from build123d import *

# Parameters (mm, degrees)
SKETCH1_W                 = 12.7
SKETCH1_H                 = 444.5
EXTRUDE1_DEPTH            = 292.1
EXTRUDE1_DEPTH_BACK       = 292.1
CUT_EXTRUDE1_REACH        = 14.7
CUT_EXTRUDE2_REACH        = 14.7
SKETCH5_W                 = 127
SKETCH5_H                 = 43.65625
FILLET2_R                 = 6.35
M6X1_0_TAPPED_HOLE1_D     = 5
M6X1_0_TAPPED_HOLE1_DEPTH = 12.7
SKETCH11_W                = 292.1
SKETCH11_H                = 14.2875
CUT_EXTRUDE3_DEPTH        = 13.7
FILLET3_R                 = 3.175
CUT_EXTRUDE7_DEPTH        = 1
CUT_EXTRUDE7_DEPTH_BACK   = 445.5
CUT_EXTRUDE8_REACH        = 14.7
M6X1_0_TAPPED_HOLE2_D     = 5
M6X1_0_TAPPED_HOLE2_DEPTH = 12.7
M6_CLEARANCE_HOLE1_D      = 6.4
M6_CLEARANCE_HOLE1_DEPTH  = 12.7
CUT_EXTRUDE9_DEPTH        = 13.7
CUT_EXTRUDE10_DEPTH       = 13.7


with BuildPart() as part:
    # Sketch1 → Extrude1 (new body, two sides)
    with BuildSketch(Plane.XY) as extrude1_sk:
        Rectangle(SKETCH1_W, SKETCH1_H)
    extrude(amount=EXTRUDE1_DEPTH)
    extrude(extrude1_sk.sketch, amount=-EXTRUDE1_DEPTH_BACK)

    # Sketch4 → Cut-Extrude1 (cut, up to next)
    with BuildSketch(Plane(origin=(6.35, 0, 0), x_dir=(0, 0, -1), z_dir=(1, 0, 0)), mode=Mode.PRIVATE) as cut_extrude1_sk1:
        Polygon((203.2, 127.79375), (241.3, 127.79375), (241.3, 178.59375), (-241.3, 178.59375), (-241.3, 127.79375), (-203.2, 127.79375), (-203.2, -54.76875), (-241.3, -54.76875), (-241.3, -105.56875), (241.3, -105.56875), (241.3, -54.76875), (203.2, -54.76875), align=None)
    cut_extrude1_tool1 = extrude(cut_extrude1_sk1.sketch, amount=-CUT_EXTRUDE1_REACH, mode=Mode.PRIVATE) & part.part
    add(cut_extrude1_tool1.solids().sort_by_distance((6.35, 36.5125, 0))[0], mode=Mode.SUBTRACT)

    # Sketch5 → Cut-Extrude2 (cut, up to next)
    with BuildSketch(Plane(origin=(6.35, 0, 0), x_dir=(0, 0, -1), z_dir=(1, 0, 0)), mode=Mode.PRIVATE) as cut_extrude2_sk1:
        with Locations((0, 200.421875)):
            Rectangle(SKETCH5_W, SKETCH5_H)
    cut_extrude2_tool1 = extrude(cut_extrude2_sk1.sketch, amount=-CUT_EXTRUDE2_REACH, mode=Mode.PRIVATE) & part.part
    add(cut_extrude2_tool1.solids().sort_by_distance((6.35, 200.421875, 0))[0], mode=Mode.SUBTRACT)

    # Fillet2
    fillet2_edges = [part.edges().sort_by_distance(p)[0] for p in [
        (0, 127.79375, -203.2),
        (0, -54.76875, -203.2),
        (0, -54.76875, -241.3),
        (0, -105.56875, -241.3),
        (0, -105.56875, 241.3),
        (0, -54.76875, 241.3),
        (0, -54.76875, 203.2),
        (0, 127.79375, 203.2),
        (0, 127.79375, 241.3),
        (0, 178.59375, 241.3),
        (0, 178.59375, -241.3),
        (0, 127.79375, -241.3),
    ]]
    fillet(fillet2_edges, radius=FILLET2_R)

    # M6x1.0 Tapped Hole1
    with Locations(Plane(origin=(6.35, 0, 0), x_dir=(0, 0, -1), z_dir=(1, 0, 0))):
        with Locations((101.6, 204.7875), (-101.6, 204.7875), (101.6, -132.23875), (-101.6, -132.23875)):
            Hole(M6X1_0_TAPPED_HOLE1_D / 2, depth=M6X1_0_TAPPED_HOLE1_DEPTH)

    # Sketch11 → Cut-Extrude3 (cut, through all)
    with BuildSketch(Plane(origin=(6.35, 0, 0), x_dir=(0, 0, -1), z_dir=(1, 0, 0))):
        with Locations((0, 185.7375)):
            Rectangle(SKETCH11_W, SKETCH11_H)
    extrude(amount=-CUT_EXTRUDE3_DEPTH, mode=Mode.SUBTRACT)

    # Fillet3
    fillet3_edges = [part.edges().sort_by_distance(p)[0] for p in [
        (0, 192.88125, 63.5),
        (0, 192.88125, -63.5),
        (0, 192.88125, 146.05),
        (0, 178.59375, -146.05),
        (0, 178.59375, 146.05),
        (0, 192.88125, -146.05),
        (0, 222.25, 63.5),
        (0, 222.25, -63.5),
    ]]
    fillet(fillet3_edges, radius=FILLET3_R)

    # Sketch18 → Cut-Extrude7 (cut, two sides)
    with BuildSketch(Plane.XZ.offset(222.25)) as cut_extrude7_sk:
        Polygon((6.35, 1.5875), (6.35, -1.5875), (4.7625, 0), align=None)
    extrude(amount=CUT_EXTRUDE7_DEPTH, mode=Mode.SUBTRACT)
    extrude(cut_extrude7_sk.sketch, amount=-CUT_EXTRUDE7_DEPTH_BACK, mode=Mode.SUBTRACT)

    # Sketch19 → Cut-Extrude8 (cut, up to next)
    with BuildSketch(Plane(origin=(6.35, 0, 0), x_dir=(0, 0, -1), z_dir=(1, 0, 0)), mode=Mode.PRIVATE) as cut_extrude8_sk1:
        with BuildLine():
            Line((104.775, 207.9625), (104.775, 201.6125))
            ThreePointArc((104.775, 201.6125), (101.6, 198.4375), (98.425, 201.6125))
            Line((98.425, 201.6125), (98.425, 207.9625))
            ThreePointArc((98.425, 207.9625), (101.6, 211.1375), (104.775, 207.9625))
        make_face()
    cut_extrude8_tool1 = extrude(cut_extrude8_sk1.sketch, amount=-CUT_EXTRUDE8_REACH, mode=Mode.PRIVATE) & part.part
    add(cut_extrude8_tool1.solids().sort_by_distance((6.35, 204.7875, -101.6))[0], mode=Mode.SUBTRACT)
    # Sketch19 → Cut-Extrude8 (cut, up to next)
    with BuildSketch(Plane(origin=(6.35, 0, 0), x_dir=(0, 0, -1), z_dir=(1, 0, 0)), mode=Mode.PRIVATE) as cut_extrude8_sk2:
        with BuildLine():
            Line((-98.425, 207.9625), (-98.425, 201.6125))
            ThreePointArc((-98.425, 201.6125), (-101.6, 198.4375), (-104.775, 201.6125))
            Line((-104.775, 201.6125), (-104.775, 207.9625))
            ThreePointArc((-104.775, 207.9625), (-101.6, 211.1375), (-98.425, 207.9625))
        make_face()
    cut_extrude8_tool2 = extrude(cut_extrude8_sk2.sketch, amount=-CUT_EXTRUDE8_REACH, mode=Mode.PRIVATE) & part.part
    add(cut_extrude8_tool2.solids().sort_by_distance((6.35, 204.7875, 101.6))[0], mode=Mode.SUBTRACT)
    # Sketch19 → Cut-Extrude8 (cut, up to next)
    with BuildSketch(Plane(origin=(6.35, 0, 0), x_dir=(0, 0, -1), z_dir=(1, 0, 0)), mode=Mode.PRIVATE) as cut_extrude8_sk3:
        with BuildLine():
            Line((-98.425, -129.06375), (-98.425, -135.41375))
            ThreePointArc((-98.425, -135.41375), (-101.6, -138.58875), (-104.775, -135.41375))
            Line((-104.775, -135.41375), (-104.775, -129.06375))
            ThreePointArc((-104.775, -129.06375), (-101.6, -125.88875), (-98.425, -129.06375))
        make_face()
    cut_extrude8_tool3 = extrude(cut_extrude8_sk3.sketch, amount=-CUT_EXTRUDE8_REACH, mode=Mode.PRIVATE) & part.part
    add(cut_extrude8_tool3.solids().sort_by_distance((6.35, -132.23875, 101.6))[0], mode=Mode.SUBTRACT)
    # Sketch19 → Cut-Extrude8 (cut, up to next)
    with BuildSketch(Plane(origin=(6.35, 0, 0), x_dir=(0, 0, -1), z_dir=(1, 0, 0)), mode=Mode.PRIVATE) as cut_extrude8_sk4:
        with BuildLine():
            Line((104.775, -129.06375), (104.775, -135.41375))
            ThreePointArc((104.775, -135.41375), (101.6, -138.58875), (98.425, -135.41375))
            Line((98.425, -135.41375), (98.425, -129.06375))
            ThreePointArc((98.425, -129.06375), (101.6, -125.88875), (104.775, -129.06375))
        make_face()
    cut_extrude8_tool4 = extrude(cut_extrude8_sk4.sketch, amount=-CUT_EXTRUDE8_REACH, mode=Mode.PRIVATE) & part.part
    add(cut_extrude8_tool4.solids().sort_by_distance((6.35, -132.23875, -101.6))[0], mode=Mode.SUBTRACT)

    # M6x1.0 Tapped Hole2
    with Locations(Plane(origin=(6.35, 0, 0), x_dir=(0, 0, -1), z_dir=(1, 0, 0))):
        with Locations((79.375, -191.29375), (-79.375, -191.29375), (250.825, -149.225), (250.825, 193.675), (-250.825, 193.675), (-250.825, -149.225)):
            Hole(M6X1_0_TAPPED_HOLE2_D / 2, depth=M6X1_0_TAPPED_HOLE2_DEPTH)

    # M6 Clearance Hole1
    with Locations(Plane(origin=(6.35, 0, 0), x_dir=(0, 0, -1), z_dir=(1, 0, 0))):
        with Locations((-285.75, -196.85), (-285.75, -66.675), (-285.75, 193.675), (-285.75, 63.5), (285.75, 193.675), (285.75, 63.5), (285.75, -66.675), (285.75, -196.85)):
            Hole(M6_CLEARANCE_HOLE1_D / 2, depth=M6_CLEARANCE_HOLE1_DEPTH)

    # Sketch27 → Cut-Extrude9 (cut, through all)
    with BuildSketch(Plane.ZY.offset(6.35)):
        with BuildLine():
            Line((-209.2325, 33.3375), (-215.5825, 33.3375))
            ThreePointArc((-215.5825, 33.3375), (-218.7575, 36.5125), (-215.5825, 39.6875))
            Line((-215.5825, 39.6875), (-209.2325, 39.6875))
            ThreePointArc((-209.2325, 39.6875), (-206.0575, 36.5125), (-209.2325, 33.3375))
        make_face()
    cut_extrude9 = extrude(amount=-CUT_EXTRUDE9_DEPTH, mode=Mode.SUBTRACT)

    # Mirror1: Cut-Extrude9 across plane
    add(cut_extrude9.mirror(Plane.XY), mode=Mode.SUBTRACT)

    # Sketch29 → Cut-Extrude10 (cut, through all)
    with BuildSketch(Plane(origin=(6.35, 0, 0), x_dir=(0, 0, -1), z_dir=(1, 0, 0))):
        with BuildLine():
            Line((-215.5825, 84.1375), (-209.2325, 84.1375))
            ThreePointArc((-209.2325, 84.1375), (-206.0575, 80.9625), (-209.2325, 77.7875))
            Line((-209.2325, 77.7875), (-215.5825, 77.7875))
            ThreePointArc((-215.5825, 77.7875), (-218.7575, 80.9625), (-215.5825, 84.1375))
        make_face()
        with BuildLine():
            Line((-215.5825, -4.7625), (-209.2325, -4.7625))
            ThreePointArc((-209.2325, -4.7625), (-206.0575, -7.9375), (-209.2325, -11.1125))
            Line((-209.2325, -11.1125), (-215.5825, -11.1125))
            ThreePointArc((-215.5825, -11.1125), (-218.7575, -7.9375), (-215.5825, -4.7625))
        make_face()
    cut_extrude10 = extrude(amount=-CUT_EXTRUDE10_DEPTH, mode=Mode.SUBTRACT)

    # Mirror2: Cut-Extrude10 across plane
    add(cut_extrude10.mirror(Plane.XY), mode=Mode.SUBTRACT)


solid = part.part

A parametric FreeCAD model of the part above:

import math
import FreeCAD as App
import Part
import Sketcher
from FreeCAD import Vector
Q = App.Units.Quantity


def edges_at(feature, points):
    """Names of the edges that pass closest to the given points."""
    edges = feature.Shape.Edges
    near = lambda p: min(range(len(edges)), key=lambda i: edges[i].distToShape(Part.Vertex(*p))[0])
    return sorted({f"Edge{near(p) + 1}" for p in points})


def add_polygon(sketch, points):
    """Adds a closed chain of lines whose ends are joined by coincident constraints."""
    first, n = sketch.GeometryCount, len(points)
    for a, b in zip(points, points[1:] + points[:1]):
        sketch.addGeometry(Part.LineSegment(App.Vector(*a, 0), App.Vector(*b, 0)), False)
    for i in range(n):
        sketch.addConstraint(Sketcher.Constraint("Coincident", first + i, 2, first + (i + 1) % n, 1))

doc = App.newDocument("Part")
body = doc.addObject("PartDesign::Body", "Body")

# Sketch on XY plane
sketch1 = body.newObject("Sketcher::SketchObject", "Sketch")
sketch1.AttachmentSupport = (doc.getObject("XY_Plane"), [""])
sketch1.MapMode = "FlatFace"
add_polygon(sketch1, [(-6.35, 222.25), (-6.35, -222.25), (6.35, -222.25), (6.35, 222.25)])  # lines 0-3
sketch1.addConstraint(Sketcher.Constraint("Vertical", 0))
sketch1.addConstraint(Sketcher.Constraint("Horizontal", 1))
sketch1.addConstraint(Sketcher.Constraint("Vertical", 2))
sketch1.addConstraint(Sketcher.Constraint("Horizontal", 3))
sketch1.addConstraint(Sketcher.Constraint("Symmetric", 0, 2, 2, 2, -1, 1))
sketch1.addConstraint(Sketcher.Constraint("DistanceX", 1, 1, 1, 2, Q("0.5 in")))
sketch1.addConstraint(Sketcher.Constraint("DistanceY", 0, 2, 0, 1, Q("17.5 in")))
pad1 = body.newObject("PartDesign::Pad", "Pad")
pad1.Profile = sketch1
pad1.Type = "TwoLengths"
pad1.Length = Q("11.5 in")
pad1.Length2 = Q("11.5 in")

# Sketch on YZ plane
sketch2 = body.newObject("Sketcher::SketchObject", "Sketch001")
sketch2.AttachmentSupport = (doc.getObject("YZ_Plane"), [""])
sketch2.MapMode = "FlatFace"
sketch2.AttachmentOffset = App.Placement(Vector(0, 0, 0.25 * 25.4), App.Rotation())
add_polygon(sketch2, [(127.79375, -203.2), (127.79375, -241.3), (178.59375, -241.3), (178.59375, 241.3), (127.79375, 241.3), (127.79375, 203.2), (-54.76875, 203.2), (-54.76875, 241.3), (-105.56875, 241.3), (-105.56875, -241.3), (-54.76875, -241.3), (-54.76875, -203.2)])  # lines 0-11
sketch2.addConstraint(Sketcher.Constraint("Vertical", 0))
sketch2.addConstraint(Sketcher.Constraint("Horizontal", 1))
sketch2.addConstraint(Sketcher.Constraint("Vertical", 2))
sketch2.addConstraint(Sketcher.Constraint("Horizontal", 3))
sketch2.addConstraint(Sketcher.Constraint("Vertical", 4))
sketch2.addConstraint(Sketcher.Constraint("Horizontal", 5))
sketch2.addConstraint(Sketcher.Constraint("Vertical", 6))
sketch2.addConstraint(Sketcher.Constraint("Horizontal", 7))
sketch2.addConstraint(Sketcher.Constraint("Vertical", 8))
sketch2.addConstraint(Sketcher.Constraint("Horizontal", 9))
sketch2.addConstraint(Sketcher.Constraint("Vertical", 10))
sketch2.addConstraint(Sketcher.Constraint("Horizontal", 11))
sketch2.addConstraint(Sketcher.Constraint("Symmetric", 0, 2, 3, 2, -1))
sketch2.addConstraint(Sketcher.Constraint("Symmetric", 6, 2, 9, 2, -1))
sketch2.addConstraint(Sketcher.Constraint("Horizontal", 3, 2, 6, 2))
sketch2.addConstraint(Sketcher.Constraint("Equal", 3, 7))
sketch2.addConstraint(Sketcher.Constraint("Equal", 0, 4))
sketch2.addConstraint(Sketcher.Constraint("DistanceX", 1, 1, 1, 2, Q("2 in")))
sketch2.addConstraint(Sketcher.Constraint("DistanceY", 2, 1, 2, 2, Q("19 in")))
sketch2.addConstraint(Sketcher.Constraint("DistanceY", 0, 2, 0, 1, Q("1.5 in")))
sketch2.addConstraint(Sketcher.Constraint("DistanceX", 5, 2, 5, 1, Q("7.1875 in")))
sketch2.addConstraint(Sketcher.Constraint("DistanceX", -1, 1, 0, 2, Q("5.03125 in")))
pocket1 = body.newObject("PartDesign::Pocket", "Pocket")
pocket1.Profile = sketch2
pocket1.Type = "UpToFirst"

# Sketch on YZ plane
sketch3 = body.newObject("Sketcher::SketchObject", "Sketch002")
sketch3.AttachmentSupport = (doc.getObject("YZ_Plane"), [""])
sketch3.MapMode = "FlatFace"
sketch3.AttachmentOffset = App.Placement(Vector(0, 0, 0.25 * 25.4), App.Rotation())
add_polygon(sketch3, [(222.25, 63.5), (178.59375, 63.5), (178.59375, -63.5), (222.25, -63.5)])  # lines 0-3
sketch3.addConstraint(Sketcher.Constraint("Horizontal", 0))
sketch3.addConstraint(Sketcher.Constraint("Vertical", 1))
sketch3.addConstraint(Sketcher.Constraint("Horizontal", 2))
sketch3.addConstraint(Sketcher.Constraint("Vertical", 3))
sketch3.addConstraint(Sketcher.Constraint("DistanceY", 1, 2, 1, 1, Q("5 in")))
sketch3.addConstraint(Sketcher.Constraint("DistanceY", -1, 1, 0, 2, Q("2.5 in")))
sketch3.addConstraint(Sketcher.Constraint("DistanceX", 0, 2, 0, 1, Q("1.71875 in")))
sketch3.addConstraint(Sketcher.Constraint("DistanceX", -1, 1, 2, 2, Q("8.75 in")))
pocket2 = body.newObject("PartDesign::Pocket", "Pocket001")
pocket2.Profile = sketch3
pocket2.Type = "UpToFirst"
doc.recompute()

fillet = body.newObject("PartDesign::Fillet", "Fillet")
fillet.Base = (pocket2, edges_at(pocket2, [
    (0, 127.794, -203.2),
    (0, -54.769, -203.2),
    (0, -54.769, -241.3),
    (0, -105.569, -241.3),
    (0, -105.569, 241.3),
    (0, -54.769, 241.3),
    (0, -54.769, 203.2),
    (0, 127.794, 203.2),
    (0, 127.794, 241.3),
    (0, 178.594, 241.3),
    (0, 178.594, -241.3),
    (0, 127.794, -241.3),
]))
fillet.Radius = Q("0.25 in")

# Sketch on YZ plane
sketch4 = body.newObject("Sketcher::SketchObject", "Sketch003")
sketch4.AttachmentSupport = (doc.getObject("YZ_Plane"), [""])
sketch4.MapMode = "FlatFace"
sketch4.AttachmentOffset = App.Placement(Vector(0, 0, 0.25 * 25.4), App.Rotation())
sketch4.addGeometry(Part.Circle(Vector(204.7875, -101.6, 0), Vector(0, 0, 1), 2.5), False)
sketch4.addGeometry(Part.Circle(Vector(204.7875, 101.6, 0), Vector(0, 0, 1), 2.5), False)
sketch4.addGeometry(Part.Circle(Vector(-132.23875, -101.6, 0), Vector(0, 0, 1), 2.5), False)
sketch4.addGeometry(Part.Circle(Vector(-132.23875, 101.6, 0), Vector(0, 0, 1), 2.5), False)
sketch4.addConstraint(Sketcher.Constraint("Equal", 0, 1))
sketch4.addConstraint(Sketcher.Constraint("Equal", 1, 2))
sketch4.addConstraint(Sketcher.Constraint("Equal", 2, 3))
sketch4.addConstraint(Sketcher.Constraint("Symmetric", 0, 3, 1, 3, -1))
sketch4.addConstraint(Sketcher.Constraint("Symmetric", 2, 3, 3, 3, -1))
sketch4.addConstraint(Sketcher.Constraint("Horizontal", 0, 3, 2, 3))
sketch4.addConstraint(Sketcher.Constraint("DistanceY", 0, 3, -1, 1, Q("4 in")))
sketch4.addConstraint(Sketcher.Constraint("Diameter", 0, Q("5 mm")))
sketch4.addConstraint(Sketcher.Constraint("DistanceX", -1, 1, 0, 3, Q("8.0625 in")))
sketch4.addConstraint(Sketcher.Constraint("DistanceX", 2, 3, -1, 1, Q("132.23875 mm")))
doc.recompute()
hole = body.newObject("PartDesign::Hole", "Hole")
hole.Profile = sketch4
hole.ThreadType = "None"
hole.Diameter = 5
hole.DepthType = "Dimension"
hole.Depth = Q("0.5 in")
hole.DrillPoint = "Flat"

# Sketch on YZ plane
sketch5 = body.newObject("Sketcher::SketchObject", "Sketch004")
sketch5.AttachmentSupport = (doc.getObject("YZ_Plane"), [""])
sketch5.MapMode = "FlatFace"
sketch5.AttachmentOffset = App.Placement(Vector(0, 0, 0.25 * 25.4), App.Rotation())
add_polygon(sketch5, [(192.88125, 146.05), (178.59375, 146.05), (178.59375, -146.05), (192.88125, -146.05)])  # lines 0-3
sketch5.addConstraint(Sketcher.Constraint("Horizontal", 0))
sketch5.addConstraint(Sketcher.Constraint("Vertical", 1))
sketch5.addConstraint(Sketcher.Constraint("Horizontal", 2))
sketch5.addConstraint(Sketcher.Constraint("Vertical", 3))
sketch5.addConstraint(Sketcher.Constraint("DistanceY", 1, 2, 1, 1, Q("11.5 in")))
sketch5.addConstraint(Sketcher.Constraint("DistanceX", 0, 2, 0, 1, Q("0.5625 in")))
sketch5.addConstraint(Sketcher.Constraint("DistanceY", -1, 1, 0, 2, Q("5.75 in")))
sketch5.addConstraint(Sketcher.Constraint("DistanceX", -1, 1, 0, 2, Q("7.03125 in")))
pocket3 = body.newObject("PartDesign::Pocket", "Pocket002")
pocket3.Profile = sketch5
pocket3.Type = "ThroughAll"
doc.recompute()

fillet2 = body.newObject("PartDesign::Fillet", "Fillet001")
fillet2.Base = (pocket3, edges_at(pocket3, [
    (0, 192.881, 63.5),
    (0, 192.881, -63.5),
    (0, 192.881, 146.05),
    (0, 178.594, -146.05),
    (0, 178.594, 146.05),
    (0, 192.881, -146.05),
    (0, 222.25, 63.5),
    (0, 222.25, -63.5),
]))
fillet2.Radius = Q("0.125 in")

# Sketch on XZ plane
sketch6 = body.newObject("Sketcher::SketchObject", "Sketch005")
sketch6.AttachmentSupport = (doc.getObject("XZ_Plane"), [""])
sketch6.MapMode = "FlatFace"
sketch6.AttachmentOffset = App.Placement(Vector(0, 0, 8.75 * 25.4), App.Rotation())
add_polygon(sketch6, [(6.35, -1.5875), (6.35, 1.5875), (4.7625, 0)])  # lines 0-2
sketch6.addConstraint(Sketcher.Constraint("Vertical", 0))
sketch6.addConstraint(Sketcher.Constraint("PointOnObject", 1, 2, -1))
sketch6.addConstraint(Sketcher.Constraint("Perpendicular", 1, 2))
sketch6.addConstraint(Sketcher.Constraint("Equal", 1, 2))
sketch6.addConstraint(Sketcher.Constraint("DistanceY", 0, 1, 0, 2, Q("0.125 in")))
sketch6.addConstraint(Sketcher.Constraint("DistanceX", -1, 1, 0, 2, Q("0.25 in")))
pocket4 = body.newObject("PartDesign::Pocket", "Pocket003")
pocket4.Profile = sketch6
pocket4.Type = "ThroughAll"
pocket4.Midplane = True

# Sketch on YZ plane
sketch7 = body.newObject("Sketcher::SketchObject", "Sketch006")
sketch7.AttachmentSupport = (doc.getObject("YZ_Plane"), [""])
sketch7.MapMode = "FlatFace"
sketch7.AttachmentOffset = App.Placement(Vector(0, 0, 0.25 * 25.4), App.Rotation())
sketch7.addGeometry(Part.LineSegment(Vector(201.6125, -104.775, 0), Vector(207.9625, -104.775, 0)), False)
sketch7.addGeometry(Part.ArcOfCircle(Part.Circle(Vector(207.9625, -101.6, 0), Vector(0, 0, 1), 3.175), math.radians(-90), math.radians(90)), False)
sketch7.addGeometry(Part.LineSegment(Vector(207.9625, -98.425, 0), Vector(201.6125, -98.425, 0)), False)
sketch7.addGeometry(Part.ArcOfCircle(Part.Circle(Vector(201.6125, -101.6, 0), Vector(0, 0, 1), 3.175), math.radians(90), math.radians(270)), False)
sketch7.addConstraint(Sketcher.Constraint("Tangent", 0, 2, 1, 1))
sketch7.addConstraint(Sketcher.Constraint("Tangent", 1, 2, 2, 1))
sketch7.addConstraint(Sketcher.Constraint("Tangent", 2, 2, 3, 1))
sketch7.addConstraint(Sketcher.Constraint("Tangent", 3, 2, 0, 1))
sketch7.addConstraint(Sketcher.Constraint("Horizontal", 0))
sketch7.addConstraint(Sketcher.Constraint("Horizontal", 2))
sketch7.addConstraint(Sketcher.Constraint("DistanceY", 1, 3, -1, 1, Q("4 in")))
sketch7.addConstraint(Sketcher.Constraint("Radius", 1, Q("0.125 in")))
sketch7.addConstraint(Sketcher.Constraint("DistanceX", 0, 1, 0, 2, Q("0.25 in")))
sketch7.addConstraint(Sketcher.Constraint("DistanceX", -1, 1, 1, 3, Q("8.1875 in")))
pocket5 = body.newObject("PartDesign::Pocket", "Pocket004")
pocket5.Profile = sketch7
pocket5.Length = Q("0.5 in")

# Sketch on YZ plane
sketch8 = body.newObject("Sketcher::SketchObject", "Sketch007")
sketch8.AttachmentSupport = (doc.getObject("YZ_Plane"), [""])
sketch8.MapMode = "FlatFace"
sketch8.AttachmentOffset = App.Placement(Vector(0, 0, 0.25 * 25.4), App.Rotation())
sketch8.addGeometry(Part.LineSegment(Vector(201.6125, 98.425, 0), Vector(207.9625, 98.425, 0)), False)
sketch8.addGeometry(Part.ArcOfCircle(Part.Circle(Vector(207.9625, 101.6, 0), Vector(0, 0, 1), 3.175), math.radians(-90), math.radians(90)), False)
sketch8.addGeometry(Part.LineSegment(Vector(207.9625, 104.775, 0), Vector(201.6125, 104.775, 0)), False)
sketch8.addGeometry(Part.ArcOfCircle(Part.Circle(Vector(201.6125, 101.6, 0), Vector(0, 0, 1), 3.175), math.radians(90), math.radians(270)), False)
sketch8.addConstraint(Sketcher.Constraint("Tangent", 0, 2, 1, 1))
sketch8.addConstraint(Sketcher.Constraint("Tangent", 1, 2, 2, 1))
sketch8.addConstraint(Sketcher.Constraint("Tangent", 2, 2, 3, 1))
sketch8.addConstraint(Sketcher.Constraint("Tangent", 3, 2, 0, 1))
sketch8.addConstraint(Sketcher.Constraint("Horizontal", 0))
sketch8.addConstraint(Sketcher.Constraint("Horizontal", 2))
sketch8.addConstraint(Sketcher.Constraint("DistanceY", -1, 1, 1, 3, Q("4 in")))
sketch8.addConstraint(Sketcher.Constraint("Radius", 1, Q("0.125 in")))
sketch8.addConstraint(Sketcher.Constraint("DistanceX", 0, 1, 0, 2, Q("0.25 in")))
sketch8.addConstraint(Sketcher.Constraint("DistanceX", -1, 1, 1, 3, Q("8.1875 in")))
pocket6 = body.newObject("PartDesign::Pocket", "Pocket005")
pocket6.Profile = sketch8
pocket6.Length = Q("0.5 in")

# Sketch on YZ plane
sketch9 = body.newObject("Sketcher::SketchObject", "Sketch008")
sketch9.AttachmentSupport = (doc.getObject("YZ_Plane"), [""])
sketch9.MapMode = "FlatFace"
sketch9.AttachmentOffset = App.Placement(Vector(0, 0, 0.25 * 25.4), App.Rotation())
sketch9.addGeometry(Part.LineSegment(Vector(-135.41375, 98.425, 0), Vector(-129.06375, 98.425, 0)), False)
sketch9.addGeometry(Part.ArcOfCircle(Part.Circle(Vector(-129.06375, 101.6, 0), Vector(0, 0, 1), 3.175), math.radians(-90), math.radians(90)), False)
sketch9.addGeometry(Part.LineSegment(Vector(-129.06375, 104.775, 0), Vector(-135.41375, 104.775, 0)), False)
sketch9.addGeometry(Part.ArcOfCircle(Part.Circle(Vector(-135.41375, 101.6, 0), Vector(0, 0, 1), 3.175), math.radians(90), math.radians(270)), False)
sketch9.addConstraint(Sketcher.Constraint("Tangent", 0, 2, 1, 1))
sketch9.addConstraint(Sketcher.Constraint("Tangent", 1, 2, 2, 1))
sketch9.addConstraint(Sketcher.Constraint("Tangent", 2, 2, 3, 1))
sketch9.addConstraint(Sketcher.Constraint("Tangent", 3, 2, 0, 1))
sketch9.addConstraint(Sketcher.Constraint("Horizontal", 0))
sketch9.addConstraint(Sketcher.Constraint("Horizontal", 2))
sketch9.addConstraint(Sketcher.Constraint("DistanceY", -1, 1, 1, 3, Q("4 in")))
sketch9.addConstraint(Sketcher.Constraint("Radius", 1, Q("0.125 in")))
sketch9.addConstraint(Sketcher.Constraint("DistanceX", 0, 1, 0, 2, Q("0.25 in")))
sketch9.addConstraint(Sketcher.Constraint("DistanceX", 1, 3, -1, 1, Q("129.06375 mm")))
pocket7 = body.newObject("PartDesign::Pocket", "Pocket006")
pocket7.Profile = sketch9
pocket7.Length = Q("0.5 in")

# Sketch on YZ plane
sketch10 = body.newObject("Sketcher::SketchObject", "Sketch009")
sketch10.AttachmentSupport = (doc.getObject("YZ_Plane"), [""])
sketch10.MapMode = "FlatFace"
sketch10.AttachmentOffset = App.Placement(Vector(0, 0, 0.25 * 25.4), App.Rotation())
sketch10.addGeometry(Part.LineSegment(Vector(-135.41375, -104.775, 0), Vector(-129.06375, -104.775, 0)), False)
sketch10.addGeometry(Part.ArcOfCircle(Part.Circle(Vector(-129.06375, -101.6, 0), Vector(0, 0, 1), 3.175), math.radians(-90), math.radians(90)), False)
sketch10.addGeometry(Part.LineSegment(Vector(-129.06375, -98.425, 0), Vector(-135.41375, -98.425, 0)), False)
sketch10.addGeometry(Part.ArcOfCircle(Part.Circle(Vector(-135.41375, -101.6, 0), Vector(0, 0, 1), 3.175), math.radians(90), math.radians(270)), False)
sketch10.addConstraint(Sketcher.Constraint("Tangent", 0, 2, 1, 1))
sketch10.addConstraint(Sketcher.Constraint("Tangent", 1, 2, 2, 1))
sketch10.addConstraint(Sketcher.Constraint("Tangent", 2, 2, 3, 1))
sketch10.addConstraint(Sketcher.Constraint("Tangent", 3, 2, 0, 1))
sketch10.addConstraint(Sketcher.Constraint("Horizontal", 0))
sketch10.addConstraint(Sketcher.Constraint("Horizontal", 2))
sketch10.addConstraint(Sketcher.Constraint("DistanceY", 1, 3, -1, 1, Q("4 in")))
sketch10.addConstraint(Sketcher.Constraint("Radius", 1, Q("0.125 in")))
sketch10.addConstraint(Sketcher.Constraint("DistanceX", 0, 1, 0, 2, Q("0.25 in")))
sketch10.addConstraint(Sketcher.Constraint("DistanceX", 1, 3, -1, 1, Q("129.06375 mm")))
pocket8 = body.newObject("PartDesign::Pocket", "Pocket007")
pocket8.Profile = sketch10
pocket8.Length = Q("0.5 in")

# Sketch on YZ plane
sketch11 = body.newObject("Sketcher::SketchObject", "Sketch010")
sketch11.AttachmentSupport = (doc.getObject("YZ_Plane"), [""])
sketch11.MapMode = "FlatFace"
sketch11.AttachmentOffset = App.Placement(Vector(0, 0, 0.25 * 25.4), App.Rotation())
sketch11.addGeometry(Part.Circle(Vector(-191.29375, -79.375, 0), Vector(0, 0, 1), 2.5), False)
sketch11.addGeometry(Part.Circle(Vector(-191.29375, 79.375, 0), Vector(0, 0, 1), 2.5), False)
sketch11.addGeometry(Part.Circle(Vector(-149.225, -250.825, 0), Vector(0, 0, 1), 2.5), False)
sketch11.addGeometry(Part.Circle(Vector(193.675, -250.825, 0), Vector(0, 0, 1), 2.5), False)
sketch11.addGeometry(Part.Circle(Vector(193.675, 250.825, 0), Vector(0, 0, 1), 2.5), False)
sketch11.addGeometry(Part.Circle(Vector(-149.225, 250.825, 0), Vector(0, 0, 1), 2.5), False)
sketch11.addConstraint(Sketcher.Constraint("Equal", 0, 1))
sketch11.addConstraint(Sketcher.Constraint("Equal", 1, 2))
sketch11.addConstraint(Sketcher.Constraint("Equal", 2, 3))
sketch11.addConstraint(Sketcher.Constraint("Equal", 3, 4))
sketch11.addConstraint(Sketcher.Constraint("Equal", 4, 5))
sketch11.addConstraint(Sketcher.Constraint("Symmetric", 0, 3, 1, 3, -1))
sketch11.addConstraint(Sketcher.Constraint("Symmetric", 3, 3, 4, 3, -1))
sketch11.addConstraint(Sketcher.Constraint("Symmetric", 2, 3, 5, 3, -1))
sketch11.addConstraint(Sketcher.Constraint("Horizontal", 2, 3, 3, 3))
sketch11.addConstraint(Sketcher.Constraint("DistanceY", 2, 3, 1, 3, Q("13 in")))
sketch11.addConstraint(Sketcher.Constraint("DistanceX", 2, 3, 3, 3, Q("13.5 in")))
sketch11.addConstraint(Sketcher.Constraint("Diameter", 0, Q("5 mm")))
sketch11.addConstraint(Sketcher.Constraint("DistanceY", 0, 3, 1, 3, Q("6.25 in")))
sketch11.addConstraint(Sketcher.Constraint("DistanceX", 0, 3, -1, 1, Q("7.53125 in")))
sketch11.addConstraint(Sketcher.Constraint("DistanceX", 2, 3, -1, 1, Q("5.875 in")))
doc.recompute()
hole2 = body.newObject("PartDesign::Hole", "Hole001")
hole2.Profile = sketch11
hole2.ThreadType = "None"
hole2.Diameter = 5
hole2.DepthType = "Dimension"
hole2.Depth = Q("0.5 in")
hole2.DrillPoint = "Flat"

# Sketch on YZ plane
sketch12 = body.newObject("Sketcher::SketchObject", "Sketch011")
sketch12.AttachmentSupport = (doc.getObject("YZ_Plane"), [""])
sketch12.MapMode = "FlatFace"
sketch12.AttachmentOffset = App.Placement(Vector(0, 0, 0.25 * 25.4), App.Rotation())
sketch12.addGeometry(Part.Circle(Vector(-196.85, 285.75, 0), Vector(0, 0, 1), 3.2), False)
sketch12.addGeometry(Part.Circle(Vector(-66.675, 285.75, 0), Vector(0, 0, 1), 3.2), False)
sketch12.addGeometry(Part.Circle(Vector(193.675, 285.75, 0), Vector(0, 0, 1), 3.2), False)
sketch12.addGeometry(Part.Circle(Vector(63.5, 285.75, 0), Vector(0, 0, 1), 3.2), False)
sketch12.addGeometry(Part.Circle(Vector(193.675, -285.75, 0), Vector(0, 0, 1), 3.2), False)
sketch12.addGeometry(Part.Circle(Vector(63.5, -285.75, 0), Vector(0, 0, 1), 3.2), False)
sketch12.addGeometry(Part.Circle(Vector(-66.675, -285.75, 0), Vector(0, 0, 1), 3.2), False)
sketch12.addGeometry(Part.Circle(Vector(-196.85, -285.75, 0), Vector(0, 0, 1), 3.2), False)
sketch12.addConstraint(Sketcher.Constraint("Equal", 0, 1))
sketch12.addConstraint(Sketcher.Constraint("Equal", 1, 2))
sketch12.addConstraint(Sketcher.Constraint("Equal", 2, 3))
sketch12.addConstraint(Sketcher.Constraint("Equal", 3, 4))
sketch12.addConstraint(Sketcher.Constraint("Equal", 4, 5))
sketch12.addConstraint(Sketcher.Constraint("Equal", 5, 6))
sketch12.addConstraint(Sketcher.Constraint("Equal", 6, 7))
sketch12.addConstraint(Sketcher.Constraint("Symmetric", 2, 3, 4, 3, -1))
sketch12.addConstraint(Sketcher.Constraint("Symmetric", 3, 3, 5, 3, -1))
sketch12.addConstraint(Sketcher.Constraint("Symmetric", 1, 3, 6, 3, -1))
sketch12.addConstraint(Sketcher.Constraint("Symmetric", 0, 3, 7, 3, -1))
sketch12.addConstraint(Sketcher.Constraint("Horizontal", 0, 3, 1, 3))
sketch12.addConstraint(Sketcher.Constraint("Horizontal", 1, 3, 2, 3))
sketch12.addConstraint(Sketcher.Constraint("Horizontal", 2, 3, 3, 3))
sketch12.addConstraint(Sketcher.Constraint("DistanceX", -1, 1, 3, 3, Q("2.5 in")))
sketch12.addConstraint(Sketcher.Constraint("DistanceY", 4, 3, 2, 3, Q("22.5 in")))
sketch12.addConstraint(Sketcher.Constraint("Diameter", 0, Q("6.4 mm")))
sketch12.addConstraint(Sketcher.Constraint("DistanceX", 0, 3, -1, 1, Q("7.75 in")))
sketch12.addConstraint(Sketcher.Constraint("DistanceX", 1, 3, 2, 3, Q("10.25 in")))
sketch12.addConstraint(Sketcher.Constraint("DistanceX", 1, 3, -1, 1, Q("2.625 in")))
doc.recompute()
hole3 = body.newObject("PartDesign::Hole", "Hole002")
hole3.Profile = sketch12
hole3.ThreadType = "None"
hole3.Diameter = 6.4
hole3.DepthType = "Dimension"
hole3.Depth = Q("0.5 in")
hole3.DrillPoint = "Flat"

# Sketch on YZ plane
sketch13 = body.newObject("Sketcher::SketchObject", "Sketch012")
sketch13.AttachmentSupport = (doc.getObject("YZ_Plane"), [""])
sketch13.MapMode = "FlatFace"
sketch13.AttachmentOffset = App.Placement(Vector(0, 0, -0.25 * 25.4), App.Rotation())
sketch13.addGeometry(Part.LineSegment(Vector(33.3375, -215.5825, 0), Vector(33.3375, -209.2325, 0)), False)
sketch13.addGeometry(Part.ArcOfCircle(Part.Circle(Vector(36.5125, -209.2325, 0), Vector(0, 0, 1), 3.175), math.radians(0), math.radians(180)), False)
sketch13.addGeometry(Part.LineSegment(Vector(39.6875, -209.2325, 0), Vector(39.6875, -215.5825, 0)), False)
sketch13.addGeometry(Part.ArcOfCircle(Part.Circle(Vector(36.5125, -215.5825, 0), Vector(0, 0, 1), 3.175), math.radians(180), math.radians(360)), False)
sketch13.addConstraint(Sketcher.Constraint("Tangent", 0, 2, 1, 2))
sketch13.addConstraint(Sketcher.Constraint("Tangent", 1, 1, 2, 1))
sketch13.addConstraint(Sketcher.Constraint("Tangent", 2, 2, 3, 2))
sketch13.addConstraint(Sketcher.Constraint("Tangent", 3, 1, 0, 1))
sketch13.addConstraint(Sketcher.Constraint("Vertical", 0))
sketch13.addConstraint(Sketcher.Constraint("Vertical", 2))
sketch13.addConstraint(Sketcher.Constraint("Radius", 1, Q("0.125 in")))
sketch13.addConstraint(Sketcher.Constraint("DistanceY", 0, 1, 0, 2, Q("0.25 in")))
sketch13.addConstraint(Sketcher.Constraint("DistanceX", -1, 1, 1, 3, Q("1.4375 in")))
sketch13.addConstraint(Sketcher.Constraint("DistanceY", 1, 3, -1, 1, Q("8.2375 in")))
pocket9 = body.newObject("PartDesign::Pocket", "Pocket008")
pocket9.Profile = sketch13
pocket9.Type = "ThroughAll"
pocket9.Reversed = True
doc.recompute()

mirrored = body.newObject("PartDesign::Mirrored", "Mirrored")
mirrored.Originals = [pocket9]
mirrored.MirrorPlane = (doc.getObject("XY_Plane"), [""])
body.Tip = mirrored

# Sketch on YZ plane
sketch14 = body.newObject("Sketcher::SketchObject", "Sketch013")
sketch14.AttachmentSupport = (doc.getObject("YZ_Plane"), [""])
sketch14.MapMode = "FlatFace"
sketch14.AttachmentOffset = App.Placement(Vector(0, 0, 0.25 * 25.4), App.Rotation())
sketch14.addGeometry(Part.LineSegment(Vector(84.1375, 209.2325, 0), Vector(84.1375, 215.5825, 0)), False)
sketch14.addGeometry(Part.ArcOfCircle(Part.Circle(Vector(80.9625, 215.5825, 0), Vector(0, 0, 1), 3.175), math.radians(0), math.radians(180)), False)
sketch14.addGeometry(Part.LineSegment(Vector(77.7875, 215.5825, 0), Vector(77.7875, 209.2325, 0)), False)
sketch14.addGeometry(Part.ArcOfCircle(Part.Circle(Vector(80.9625, 209.2325, 0), Vector(0, 0, 1), 3.175), math.radians(180), math.radians(360)), False)
sketch14.addGeometry(Part.LineSegment(Vector(-4.7625, 209.2325, 0), Vector(-4.7625, 215.5825, 0)), False)
sketch14.addGeometry(Part.ArcOfCircle(Part.Circle(Vector(-7.9375, 215.5825, 0), Vector(0, 0, 1), 3.175), math.radians(0), math.radians(180)), False)
sketch14.addGeometry(Part.LineSegment(Vector(-11.1125, 215.5825, 0), Vector(-11.1125, 209.2325, 0)), False)
sketch14.addGeometry(Part.ArcOfCircle(Part.Circle(Vector(-7.9375, 209.2325, 0), Vector(0, 0, 1), 3.175), math.radians(180), math.radians(360)), False)
sketch14.addConstraint(Sketcher.Constraint("Tangent", 0, 2, 1, 1))
sketch14.addConstraint(Sketcher.Constraint("Tangent", 1, 2, 2, 1))
sketch14.addConstraint(Sketcher.Constraint("Tangent", 2, 2, 3, 1))
sketch14.addConstraint(Sketcher.Constraint("Tangent", 3, 2, 0, 1))
sketch14.addConstraint(Sketcher.Constraint("Tangent", 4, 2, 5, 1))
sketch14.addConstraint(Sketcher.Constraint("Tangent", 5, 2, 6, 1))
sketch14.addConstraint(Sketcher.Constraint("Tangent", 6, 2, 7, 1))
sketch14.addConstraint(Sketcher.Constraint("Tangent", 7, 2, 4, 1))
sketch14.addConstraint(Sketcher.Constraint("Vertical", 0))
sketch14.addConstraint(Sketcher.Constraint("Vertical", 2))
sketch14.addConstraint(Sketcher.Constraint("Vertical", 4))
sketch14.addConstraint(Sketcher.Constraint("Vertical", 6))
sketch14.addConstraint(Sketcher.Constraint("Equal", 3, 5))
sketch14.addConstraint(Sketcher.Constraint("Horizontal", 1, 3, 5, 3))
sketch14.addConstraint(Sketcher.Constraint("Horizontal", 3, 3, 7, 3))
sketch14.addConstraint(Sketcher.Constraint("Radius", 1, Q("0.125 in")))
sketch14.addConstraint(Sketcher.Constraint("DistanceY", 0, 1, 0, 2, Q("0.25 in")))
sketch14.addConstraint(Sketcher.Constraint("DistanceX", 5, 3, 1, 3, Q("3.5 in")))
sketch14.addConstraint(Sketcher.Constraint("DistanceX", -1, 1, 1, 3, Q("3.1875 in")))
sketch14.addConstraint(Sketcher.Constraint("DistanceY", -1, 1, 1, 3, Q("8.4875 in")))
pocket10 = body.newObject("PartDesign::Pocket", "Pocket009")
pocket10.Profile = sketch14
pocket10.Type = "ThroughAll"
doc.recompute()

mirrored2 = body.newObject("PartDesign::Mirrored", "Mirrored001")
mirrored2.Originals = [pocket10]
mirrored2.MirrorPlane = (doc.getObject("XY_Plane"), [""])
body.Tip = mirrored2

doc.recompute()
